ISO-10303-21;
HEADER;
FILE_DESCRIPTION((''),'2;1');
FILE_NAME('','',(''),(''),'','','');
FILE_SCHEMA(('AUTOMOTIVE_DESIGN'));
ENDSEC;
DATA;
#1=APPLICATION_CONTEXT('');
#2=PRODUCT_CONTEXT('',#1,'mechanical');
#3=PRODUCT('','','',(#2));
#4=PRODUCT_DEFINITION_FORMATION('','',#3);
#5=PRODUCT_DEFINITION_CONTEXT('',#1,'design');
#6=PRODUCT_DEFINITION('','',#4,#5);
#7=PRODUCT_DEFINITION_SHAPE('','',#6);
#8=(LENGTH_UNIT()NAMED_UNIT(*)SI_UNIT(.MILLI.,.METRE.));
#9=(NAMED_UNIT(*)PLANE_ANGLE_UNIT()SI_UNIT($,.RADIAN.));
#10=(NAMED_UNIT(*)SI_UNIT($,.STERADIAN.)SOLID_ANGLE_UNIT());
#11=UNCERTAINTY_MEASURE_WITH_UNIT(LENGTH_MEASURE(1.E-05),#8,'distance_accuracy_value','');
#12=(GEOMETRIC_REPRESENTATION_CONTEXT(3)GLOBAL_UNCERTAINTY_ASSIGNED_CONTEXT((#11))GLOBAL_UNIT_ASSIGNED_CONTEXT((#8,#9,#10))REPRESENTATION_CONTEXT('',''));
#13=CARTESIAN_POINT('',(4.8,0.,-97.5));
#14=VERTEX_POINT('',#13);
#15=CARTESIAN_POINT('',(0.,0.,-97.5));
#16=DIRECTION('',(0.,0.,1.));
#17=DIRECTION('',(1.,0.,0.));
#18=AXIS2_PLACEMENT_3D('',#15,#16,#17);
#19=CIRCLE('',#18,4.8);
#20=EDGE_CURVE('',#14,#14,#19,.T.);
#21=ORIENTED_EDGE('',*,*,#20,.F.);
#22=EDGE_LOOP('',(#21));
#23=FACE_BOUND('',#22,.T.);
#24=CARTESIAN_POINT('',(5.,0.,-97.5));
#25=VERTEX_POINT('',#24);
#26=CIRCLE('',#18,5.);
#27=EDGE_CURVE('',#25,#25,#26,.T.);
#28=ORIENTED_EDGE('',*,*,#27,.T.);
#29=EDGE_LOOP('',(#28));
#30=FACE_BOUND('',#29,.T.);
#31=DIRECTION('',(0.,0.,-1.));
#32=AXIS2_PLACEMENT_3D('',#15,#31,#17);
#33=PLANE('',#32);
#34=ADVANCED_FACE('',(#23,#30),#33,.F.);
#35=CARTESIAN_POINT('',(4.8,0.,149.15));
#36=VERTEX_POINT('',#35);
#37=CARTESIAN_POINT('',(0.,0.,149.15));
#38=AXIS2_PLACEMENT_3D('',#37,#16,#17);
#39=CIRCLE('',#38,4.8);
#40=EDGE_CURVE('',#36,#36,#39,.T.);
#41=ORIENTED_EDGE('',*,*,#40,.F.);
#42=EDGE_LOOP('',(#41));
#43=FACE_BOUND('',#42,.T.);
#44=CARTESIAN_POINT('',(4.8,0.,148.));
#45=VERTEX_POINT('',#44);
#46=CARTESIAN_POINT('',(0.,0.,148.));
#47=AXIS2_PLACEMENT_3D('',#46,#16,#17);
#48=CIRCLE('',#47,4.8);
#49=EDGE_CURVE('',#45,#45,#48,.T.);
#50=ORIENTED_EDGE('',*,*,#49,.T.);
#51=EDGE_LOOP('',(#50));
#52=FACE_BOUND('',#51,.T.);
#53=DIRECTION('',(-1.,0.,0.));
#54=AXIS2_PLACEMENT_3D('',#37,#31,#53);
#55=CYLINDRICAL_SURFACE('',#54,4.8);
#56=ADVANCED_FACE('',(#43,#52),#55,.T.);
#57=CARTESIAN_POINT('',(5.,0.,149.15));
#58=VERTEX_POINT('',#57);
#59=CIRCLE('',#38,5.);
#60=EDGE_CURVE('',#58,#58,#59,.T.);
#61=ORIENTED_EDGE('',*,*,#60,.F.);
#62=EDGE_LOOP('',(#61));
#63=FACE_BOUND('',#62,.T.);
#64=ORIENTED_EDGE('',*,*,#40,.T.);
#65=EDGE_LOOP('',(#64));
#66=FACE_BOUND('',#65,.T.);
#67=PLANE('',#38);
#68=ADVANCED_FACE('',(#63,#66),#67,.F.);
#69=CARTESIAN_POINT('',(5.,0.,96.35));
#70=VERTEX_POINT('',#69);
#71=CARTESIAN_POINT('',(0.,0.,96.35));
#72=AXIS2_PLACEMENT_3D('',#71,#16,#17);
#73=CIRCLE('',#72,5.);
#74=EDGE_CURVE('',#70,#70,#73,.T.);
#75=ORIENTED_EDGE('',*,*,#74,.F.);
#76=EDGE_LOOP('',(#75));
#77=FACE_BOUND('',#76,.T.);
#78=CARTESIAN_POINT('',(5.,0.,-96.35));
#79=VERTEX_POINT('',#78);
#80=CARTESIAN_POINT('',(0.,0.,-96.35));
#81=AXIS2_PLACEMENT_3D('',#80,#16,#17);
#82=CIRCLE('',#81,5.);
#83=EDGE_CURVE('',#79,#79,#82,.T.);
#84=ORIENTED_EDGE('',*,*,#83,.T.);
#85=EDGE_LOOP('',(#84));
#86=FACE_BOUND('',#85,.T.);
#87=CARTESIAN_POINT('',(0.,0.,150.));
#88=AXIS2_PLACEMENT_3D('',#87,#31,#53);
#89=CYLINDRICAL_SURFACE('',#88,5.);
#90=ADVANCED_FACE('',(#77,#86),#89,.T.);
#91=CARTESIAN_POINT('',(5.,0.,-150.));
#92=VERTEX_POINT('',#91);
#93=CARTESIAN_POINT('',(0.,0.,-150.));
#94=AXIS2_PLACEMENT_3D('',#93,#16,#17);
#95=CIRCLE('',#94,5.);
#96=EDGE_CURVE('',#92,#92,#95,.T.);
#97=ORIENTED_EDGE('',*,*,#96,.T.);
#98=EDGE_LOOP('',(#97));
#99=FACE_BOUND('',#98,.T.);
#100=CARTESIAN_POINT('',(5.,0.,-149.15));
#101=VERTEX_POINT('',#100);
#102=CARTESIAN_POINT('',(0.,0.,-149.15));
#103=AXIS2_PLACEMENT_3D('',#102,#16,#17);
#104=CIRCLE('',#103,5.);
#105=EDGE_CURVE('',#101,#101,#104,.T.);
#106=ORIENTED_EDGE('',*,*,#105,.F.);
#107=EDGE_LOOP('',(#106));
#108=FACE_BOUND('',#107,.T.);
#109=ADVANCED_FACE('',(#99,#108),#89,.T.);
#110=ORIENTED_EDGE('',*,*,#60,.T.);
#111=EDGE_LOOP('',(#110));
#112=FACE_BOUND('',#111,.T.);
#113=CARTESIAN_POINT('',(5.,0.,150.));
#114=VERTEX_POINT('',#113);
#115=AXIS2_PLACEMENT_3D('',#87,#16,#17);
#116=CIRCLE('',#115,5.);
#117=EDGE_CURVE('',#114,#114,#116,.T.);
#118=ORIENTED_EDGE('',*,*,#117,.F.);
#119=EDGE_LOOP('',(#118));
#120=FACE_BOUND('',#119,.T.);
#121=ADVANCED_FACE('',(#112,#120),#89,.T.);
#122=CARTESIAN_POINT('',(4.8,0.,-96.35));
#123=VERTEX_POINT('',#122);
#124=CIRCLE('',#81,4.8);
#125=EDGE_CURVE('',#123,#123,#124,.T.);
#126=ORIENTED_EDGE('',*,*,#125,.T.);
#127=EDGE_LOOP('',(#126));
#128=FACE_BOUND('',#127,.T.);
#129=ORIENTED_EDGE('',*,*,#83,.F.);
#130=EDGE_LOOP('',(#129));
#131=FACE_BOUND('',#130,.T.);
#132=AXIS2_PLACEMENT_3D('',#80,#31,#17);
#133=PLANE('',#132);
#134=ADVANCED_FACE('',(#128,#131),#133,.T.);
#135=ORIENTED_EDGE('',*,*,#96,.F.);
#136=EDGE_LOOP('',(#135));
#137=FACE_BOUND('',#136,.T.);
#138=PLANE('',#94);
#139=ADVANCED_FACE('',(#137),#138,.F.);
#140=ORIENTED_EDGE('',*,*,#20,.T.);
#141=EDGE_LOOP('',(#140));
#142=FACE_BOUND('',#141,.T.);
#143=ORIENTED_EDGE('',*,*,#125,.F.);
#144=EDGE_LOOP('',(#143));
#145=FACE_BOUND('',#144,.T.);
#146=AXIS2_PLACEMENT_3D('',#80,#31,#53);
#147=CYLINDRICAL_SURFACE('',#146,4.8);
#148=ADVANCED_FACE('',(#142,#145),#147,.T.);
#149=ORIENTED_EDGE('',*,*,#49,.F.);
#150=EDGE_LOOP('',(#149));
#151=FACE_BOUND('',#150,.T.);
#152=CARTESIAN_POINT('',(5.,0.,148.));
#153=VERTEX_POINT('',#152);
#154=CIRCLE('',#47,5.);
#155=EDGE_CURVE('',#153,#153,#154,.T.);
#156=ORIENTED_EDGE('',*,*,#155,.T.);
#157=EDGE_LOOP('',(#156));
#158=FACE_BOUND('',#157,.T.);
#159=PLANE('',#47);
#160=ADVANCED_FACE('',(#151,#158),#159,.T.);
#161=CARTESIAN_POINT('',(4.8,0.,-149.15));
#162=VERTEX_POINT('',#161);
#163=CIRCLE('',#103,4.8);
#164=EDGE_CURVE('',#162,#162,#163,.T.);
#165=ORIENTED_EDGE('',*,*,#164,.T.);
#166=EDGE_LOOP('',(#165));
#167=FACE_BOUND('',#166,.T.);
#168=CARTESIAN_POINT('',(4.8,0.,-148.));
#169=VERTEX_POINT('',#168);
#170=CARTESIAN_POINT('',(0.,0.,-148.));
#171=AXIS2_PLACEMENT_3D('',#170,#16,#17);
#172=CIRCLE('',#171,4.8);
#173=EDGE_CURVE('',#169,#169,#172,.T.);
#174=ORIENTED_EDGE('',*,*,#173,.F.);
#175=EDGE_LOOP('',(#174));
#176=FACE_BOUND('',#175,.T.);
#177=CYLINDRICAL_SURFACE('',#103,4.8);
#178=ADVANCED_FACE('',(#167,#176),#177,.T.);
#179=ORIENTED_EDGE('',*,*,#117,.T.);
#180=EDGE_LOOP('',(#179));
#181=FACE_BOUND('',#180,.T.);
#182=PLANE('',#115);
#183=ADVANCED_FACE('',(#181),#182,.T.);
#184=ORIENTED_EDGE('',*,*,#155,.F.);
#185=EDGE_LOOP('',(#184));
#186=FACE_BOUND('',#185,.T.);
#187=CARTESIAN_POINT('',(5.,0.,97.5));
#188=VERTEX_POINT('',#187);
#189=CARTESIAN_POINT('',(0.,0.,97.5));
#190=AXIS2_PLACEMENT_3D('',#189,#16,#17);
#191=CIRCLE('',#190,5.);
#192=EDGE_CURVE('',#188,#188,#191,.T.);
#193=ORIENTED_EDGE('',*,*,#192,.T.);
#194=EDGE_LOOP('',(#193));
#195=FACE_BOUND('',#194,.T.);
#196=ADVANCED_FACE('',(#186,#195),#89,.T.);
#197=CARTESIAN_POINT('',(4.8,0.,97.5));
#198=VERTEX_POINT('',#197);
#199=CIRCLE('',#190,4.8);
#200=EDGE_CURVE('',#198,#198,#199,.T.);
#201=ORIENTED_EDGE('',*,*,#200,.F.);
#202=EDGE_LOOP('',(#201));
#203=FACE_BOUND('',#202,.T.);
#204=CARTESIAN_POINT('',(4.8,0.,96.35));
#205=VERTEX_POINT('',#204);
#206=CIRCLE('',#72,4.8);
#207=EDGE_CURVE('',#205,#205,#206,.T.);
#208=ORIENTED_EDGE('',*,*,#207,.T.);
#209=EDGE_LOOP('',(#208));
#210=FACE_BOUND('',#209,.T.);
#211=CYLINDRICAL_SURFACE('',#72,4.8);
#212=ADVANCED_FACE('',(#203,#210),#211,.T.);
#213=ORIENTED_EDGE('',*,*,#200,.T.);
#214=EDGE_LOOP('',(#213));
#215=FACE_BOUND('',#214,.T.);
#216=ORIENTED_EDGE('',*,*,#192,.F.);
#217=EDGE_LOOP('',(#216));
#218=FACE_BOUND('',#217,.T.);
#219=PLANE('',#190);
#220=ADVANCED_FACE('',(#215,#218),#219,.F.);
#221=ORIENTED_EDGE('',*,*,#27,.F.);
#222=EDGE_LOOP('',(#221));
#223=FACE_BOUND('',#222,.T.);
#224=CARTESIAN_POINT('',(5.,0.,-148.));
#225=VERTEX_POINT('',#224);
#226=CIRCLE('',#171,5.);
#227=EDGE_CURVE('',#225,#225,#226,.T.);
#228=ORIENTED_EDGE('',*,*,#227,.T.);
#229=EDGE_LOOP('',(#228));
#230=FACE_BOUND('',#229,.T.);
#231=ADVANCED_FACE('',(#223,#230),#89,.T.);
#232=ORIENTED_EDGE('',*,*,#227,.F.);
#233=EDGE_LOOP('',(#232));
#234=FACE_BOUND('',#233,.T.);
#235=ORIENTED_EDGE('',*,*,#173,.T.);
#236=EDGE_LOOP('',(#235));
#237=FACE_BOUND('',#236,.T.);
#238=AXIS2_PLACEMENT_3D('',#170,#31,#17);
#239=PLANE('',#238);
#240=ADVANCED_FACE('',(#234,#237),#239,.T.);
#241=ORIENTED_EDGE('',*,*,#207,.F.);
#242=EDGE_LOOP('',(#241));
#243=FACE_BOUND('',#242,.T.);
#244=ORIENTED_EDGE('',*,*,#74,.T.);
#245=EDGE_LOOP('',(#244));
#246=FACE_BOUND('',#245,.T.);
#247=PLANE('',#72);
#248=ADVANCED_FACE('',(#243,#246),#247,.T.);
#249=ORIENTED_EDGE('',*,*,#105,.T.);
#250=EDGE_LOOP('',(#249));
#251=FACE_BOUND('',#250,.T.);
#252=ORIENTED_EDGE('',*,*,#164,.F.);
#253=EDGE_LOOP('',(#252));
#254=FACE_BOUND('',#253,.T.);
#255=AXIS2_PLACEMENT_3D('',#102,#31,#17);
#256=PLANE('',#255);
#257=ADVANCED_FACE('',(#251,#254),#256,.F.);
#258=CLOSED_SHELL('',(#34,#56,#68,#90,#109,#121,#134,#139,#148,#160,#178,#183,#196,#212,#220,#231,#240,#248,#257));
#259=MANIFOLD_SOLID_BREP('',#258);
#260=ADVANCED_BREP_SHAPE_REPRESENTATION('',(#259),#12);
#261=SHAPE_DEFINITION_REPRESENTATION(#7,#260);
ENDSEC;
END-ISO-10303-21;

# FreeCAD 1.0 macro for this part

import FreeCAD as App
import Part
import Sketcher

V = App.Vector
Q = App.Units.Quantity

doc = App.newDocument("Part")
body = doc.addObject("PartDesign::Body", "Body")

# Sketch on XY plane
sketch1 = body.newObject("Sketcher::SketchObject", "Sketch")
sketch1.AttachmentSupport = (doc.getObject("XY_Plane"), [""])
sketch1.MapMode = "FlatFace"
sketch1.addGeometry(Part.Circle(V(0, 0, 0), V(0, 0, 1), 5), False)
sketch1.addConstraint([
    Sketcher.Constraint("Coincident", 0, 3, -1, 1),
    Sketcher.Constraint("Diameter", 0, Q("10 mm")),
])
pad1 = body.newObject("PartDesign::Pad", "Pad")
pad1.Profile = sketch1
pad1.Length = 300
pad1.Midplane = True

# Sketch on XY plane
sketch2 = body.newObject("Sketcher::SketchObject", "Sketch001")
sketch2.AttachmentSupport = (doc.getObject("XY_Plane"), [""])
sketch2.MapMode = "FlatFace"
sketch2.AttachmentOffset = App.Placement(V(0, 0, 148), App.Rotation())
sketch2.addGeometry([
    Part.Circle(V(0, 0, 0), V(0, 0, 1), 5),
    Part.Circle(V(0, 0, 0), V(0, 0, 1), 4.8),
], False)
sketch2.addConstraint([
    Sketcher.Constraint("Coincident", 0, 3, -1, 1),
    Sketcher.Constraint("Coincident", 1, 3, -1, 1),
    Sketcher.Constraint("Diameter", 0, Q("10 mm")),
    Sketcher.Constraint("Diameter", 1, Q("9.6 mm")),
])
pocket1 = body.newObject("PartDesign::Pocket", "Pocket")
pocket1.Profile = sketch2
pocket1.Length = 1.15
pocket1.Reversed = True

# Sketch on XY plane
sketch3 = body.newObject("Sketcher::SketchObject", "Sketch002")
sketch3.AttachmentSupport = (doc.getObject("XY_Plane"), [""])
sketch3.MapMode = "FlatFace"
sketch3.AttachmentOffset = App.Placement(V(0, 0, 97.5), App.Rotation())
sketch3.addGeometry([
    Part.Circle(V(0, 0, 0), V(0, 0, 1), 5),
    Part.Circle(V(0, 0, 0), V(0, 0, 1), 4.8),
], False)
sketch3.addConstraint([
    Sketcher.Constraint("Coincident", 0, 3, -1, 1),
    Sketcher.Constraint("Coincident", 1, 3, -1, 1),
    Sketcher.Constraint("Diameter", 0, Q("10 mm")),
    Sketcher.Constraint("Diameter", 1, Q("9.6 mm")),
])
pocket2 = body.newObject("PartDesign::Pocket", "Pocket001")
pocket2.Profile = sketch3
pocket2.Length = 1.15
doc.recompute()

mirrored = body.newObject("PartDesign::Mirrored", "Mirrored")
mirrored.Originals = [pocket1, pocket2]
mirrored.MirrorPlane = (doc.getObject("XY_Plane"), [""])
body.Tip = mirrored

doc.recompute()
